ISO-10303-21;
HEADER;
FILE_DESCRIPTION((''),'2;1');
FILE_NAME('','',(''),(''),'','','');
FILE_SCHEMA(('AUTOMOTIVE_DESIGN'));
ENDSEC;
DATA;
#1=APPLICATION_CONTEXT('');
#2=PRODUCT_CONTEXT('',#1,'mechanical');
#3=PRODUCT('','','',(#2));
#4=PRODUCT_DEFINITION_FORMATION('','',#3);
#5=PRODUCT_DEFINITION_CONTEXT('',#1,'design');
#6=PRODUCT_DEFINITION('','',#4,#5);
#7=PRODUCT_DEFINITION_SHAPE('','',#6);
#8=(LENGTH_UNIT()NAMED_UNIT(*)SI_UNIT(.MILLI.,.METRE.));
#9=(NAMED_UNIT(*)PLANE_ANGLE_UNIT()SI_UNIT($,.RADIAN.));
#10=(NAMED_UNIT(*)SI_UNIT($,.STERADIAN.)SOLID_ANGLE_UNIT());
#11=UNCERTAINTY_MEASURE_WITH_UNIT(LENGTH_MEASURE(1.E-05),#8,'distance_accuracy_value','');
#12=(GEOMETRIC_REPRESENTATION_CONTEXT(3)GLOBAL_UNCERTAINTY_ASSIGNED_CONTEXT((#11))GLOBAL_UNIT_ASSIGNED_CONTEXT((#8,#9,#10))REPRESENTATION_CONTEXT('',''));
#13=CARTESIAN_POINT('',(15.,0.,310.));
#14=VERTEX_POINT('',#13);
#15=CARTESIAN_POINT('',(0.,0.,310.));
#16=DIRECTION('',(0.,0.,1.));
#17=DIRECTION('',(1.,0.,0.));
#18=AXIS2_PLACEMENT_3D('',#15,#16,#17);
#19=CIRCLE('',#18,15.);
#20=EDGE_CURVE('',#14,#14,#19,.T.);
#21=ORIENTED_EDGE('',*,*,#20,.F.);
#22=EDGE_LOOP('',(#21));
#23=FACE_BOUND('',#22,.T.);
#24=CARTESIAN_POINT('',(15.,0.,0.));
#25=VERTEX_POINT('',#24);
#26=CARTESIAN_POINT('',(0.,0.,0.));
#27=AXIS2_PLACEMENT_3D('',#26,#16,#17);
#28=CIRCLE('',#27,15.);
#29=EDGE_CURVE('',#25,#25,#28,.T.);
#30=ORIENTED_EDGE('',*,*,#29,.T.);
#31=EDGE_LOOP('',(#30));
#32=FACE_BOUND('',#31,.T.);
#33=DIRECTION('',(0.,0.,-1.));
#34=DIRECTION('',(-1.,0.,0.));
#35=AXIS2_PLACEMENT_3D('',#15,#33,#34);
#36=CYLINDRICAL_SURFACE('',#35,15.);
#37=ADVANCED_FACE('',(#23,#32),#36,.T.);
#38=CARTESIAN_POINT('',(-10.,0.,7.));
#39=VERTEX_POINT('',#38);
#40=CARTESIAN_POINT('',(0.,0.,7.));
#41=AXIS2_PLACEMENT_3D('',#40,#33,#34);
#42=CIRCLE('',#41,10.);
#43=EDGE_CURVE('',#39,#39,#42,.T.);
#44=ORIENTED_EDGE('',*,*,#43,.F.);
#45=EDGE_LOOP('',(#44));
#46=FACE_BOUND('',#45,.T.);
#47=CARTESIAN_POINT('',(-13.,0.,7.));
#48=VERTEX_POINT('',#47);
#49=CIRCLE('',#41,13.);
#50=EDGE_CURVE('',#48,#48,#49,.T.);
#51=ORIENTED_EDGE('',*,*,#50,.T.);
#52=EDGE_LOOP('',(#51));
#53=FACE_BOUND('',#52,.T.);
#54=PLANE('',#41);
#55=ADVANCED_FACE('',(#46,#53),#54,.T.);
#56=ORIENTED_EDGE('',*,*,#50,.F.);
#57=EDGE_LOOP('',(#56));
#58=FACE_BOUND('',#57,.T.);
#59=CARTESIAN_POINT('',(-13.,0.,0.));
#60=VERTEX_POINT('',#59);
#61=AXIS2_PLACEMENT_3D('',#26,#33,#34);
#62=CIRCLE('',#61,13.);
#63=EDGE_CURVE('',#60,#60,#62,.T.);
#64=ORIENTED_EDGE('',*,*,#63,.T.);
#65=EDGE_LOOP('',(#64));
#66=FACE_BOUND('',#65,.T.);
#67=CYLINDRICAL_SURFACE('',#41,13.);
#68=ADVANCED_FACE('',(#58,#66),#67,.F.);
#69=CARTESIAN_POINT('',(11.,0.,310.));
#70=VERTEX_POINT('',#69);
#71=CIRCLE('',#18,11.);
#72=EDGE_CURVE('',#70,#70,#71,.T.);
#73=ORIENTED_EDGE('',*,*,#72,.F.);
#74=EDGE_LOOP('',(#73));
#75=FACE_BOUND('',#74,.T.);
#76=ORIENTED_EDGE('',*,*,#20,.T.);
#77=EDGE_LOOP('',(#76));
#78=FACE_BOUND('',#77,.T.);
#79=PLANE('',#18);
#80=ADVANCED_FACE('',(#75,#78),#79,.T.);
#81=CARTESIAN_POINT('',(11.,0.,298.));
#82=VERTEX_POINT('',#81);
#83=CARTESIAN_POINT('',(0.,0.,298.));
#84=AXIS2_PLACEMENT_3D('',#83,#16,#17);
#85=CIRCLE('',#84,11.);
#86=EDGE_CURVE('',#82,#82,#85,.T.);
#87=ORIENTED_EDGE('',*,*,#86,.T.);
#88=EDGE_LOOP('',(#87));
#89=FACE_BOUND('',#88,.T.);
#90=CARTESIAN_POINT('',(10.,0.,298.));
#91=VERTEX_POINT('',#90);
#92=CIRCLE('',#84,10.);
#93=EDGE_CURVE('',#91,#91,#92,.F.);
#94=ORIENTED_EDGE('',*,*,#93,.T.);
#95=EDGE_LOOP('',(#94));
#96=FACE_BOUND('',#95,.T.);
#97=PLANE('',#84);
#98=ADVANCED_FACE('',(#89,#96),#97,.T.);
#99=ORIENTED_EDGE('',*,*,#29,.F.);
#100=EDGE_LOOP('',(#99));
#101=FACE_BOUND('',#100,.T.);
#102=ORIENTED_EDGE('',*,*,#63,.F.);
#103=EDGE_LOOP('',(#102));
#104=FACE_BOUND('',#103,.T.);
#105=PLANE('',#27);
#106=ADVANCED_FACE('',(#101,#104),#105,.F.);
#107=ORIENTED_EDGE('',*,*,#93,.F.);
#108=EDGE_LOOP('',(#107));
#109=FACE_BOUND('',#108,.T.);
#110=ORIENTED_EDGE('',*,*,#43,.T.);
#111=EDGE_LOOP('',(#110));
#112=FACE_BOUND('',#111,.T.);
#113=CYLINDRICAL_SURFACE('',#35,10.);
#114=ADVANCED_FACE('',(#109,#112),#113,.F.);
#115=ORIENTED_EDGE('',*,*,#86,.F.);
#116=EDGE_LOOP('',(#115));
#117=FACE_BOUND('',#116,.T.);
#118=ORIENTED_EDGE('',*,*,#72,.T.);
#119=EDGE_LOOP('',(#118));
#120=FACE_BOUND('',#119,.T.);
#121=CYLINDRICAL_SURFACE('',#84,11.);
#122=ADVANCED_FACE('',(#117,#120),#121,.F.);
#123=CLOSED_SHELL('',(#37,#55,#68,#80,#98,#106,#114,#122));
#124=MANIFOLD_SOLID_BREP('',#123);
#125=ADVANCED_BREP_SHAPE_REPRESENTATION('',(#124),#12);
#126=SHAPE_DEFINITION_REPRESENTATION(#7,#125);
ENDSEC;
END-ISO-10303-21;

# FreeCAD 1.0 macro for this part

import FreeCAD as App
import Part
import Sketcher

doc = App.newDocument("Part")
params = doc.addObject("Spreadsheet::Sheet", "Params")
for row, (alias, value) in enumerate([
    ("sketch1_diameter", "30 mm"),
    ("sketch1_diameter2", "20 mm"),
    ("pad1_length", "310 mm"),
    ("sketch2_diameter", "26 mm"),
    ("sketch2_diameter2", "20 mm"),
    ("pocket1_length", "7 mm"),
    ("sketch3_diameter", "22 mm"),
    ("sketch3_diameter2", "20 mm"),
    ("pocket2_length", "12 mm"),
], start=1):
    params.set(f"A{row}", alias)
    params.set(f"B{row}", "=" + value)
    params.setAlias(f"B{row}", alias)

body = doc.addObject("PartDesign::Body", "Body")

# Sketch on XY plane
sketch1 = doc.addObject("Sketcher::SketchObject", "Sketch")
body.addObject(sketch1)
sketch1.AttachmentSupport = (doc.XY_Plane, [""])
sketch1.MapMode = "FlatFace"
sketch1.addGeometry([
    Part.Circle(App.Vector(0, 0, 0), App.Vector(0, 0, 1), 15),
    Part.Circle(App.Vector(0, 0, 0), App.Vector(0, 0, 1), 10),
], False)
sketch1.addConstraint([
    Sketcher.Constraint("Coincident", 0, 3, -1, 1),
    Sketcher.Constraint("Coincident", 1, 3, -1, 1),
    Sketcher.Constraint("Diameter", 0, 30.0),
    Sketcher.Constraint("Diameter", 1, 20.0),
])
sketch1.setExpression("Constraints[2]", "Params.sketch1_diameter")
sketch1.setExpression("Constraints[3]", "Params.sketch1_diameter2")
pad1 = doc.addObject("PartDesign::Pad", "Pad")
body.addObject(pad1)
pad1.Profile = sketch1
pad1.setExpression("Length", "Params.pad1_length")

# Sketch on XY plane
sketch2 = doc.addObject("Sketcher::SketchObject", "Sketch001")
body.addObject(sketch2)
sketch2.AttachmentSupport = (doc.XY_Plane, [""])
sketch2.MapMode = "FlatFace"
sketch2.addGeometry([
    Part.Circle(App.Vector(0, 0, 0), App.Vector(0, 0, 1), 13),
    Part.Circle(App.Vector(0, 0, 0), App.Vector(0, 0, 1), 10),
], False)
sketch2.addConstraint([
    Sketcher.Constraint("Coincident", 0, 3, -1, 1),
    Sketcher.Constraint("Coincident", 1, 3, -1, 1),
    Sketcher.Constraint("Diameter", 0, 26.0),
    Sketcher.Constraint("Diameter", 1, 20.0),
])
sketch2.setExpression("Constraints[2]", "Params.sketch2_diameter")
sketch2.setExpression("Constraints[3]", "Params.sketch2_diameter2")
pocket1 = doc.addObject("PartDesign::Pocket", "Pocket")
body.addObject(pocket1)
pocket1.Profile = sketch2
pocket1.setExpression("Length", "Params.pocket1_length")
pocket1.Reversed = True

# Sketch on XY plane
sketch3 = doc.addObject("Sketcher::SketchObject", "Sketch002")
body.addObject(sketch3)
sketch3.AttachmentSupport = (doc.XY_Plane, [""])
sketch3.MapMode = "FlatFace"
sketch3.AttachmentOffset = App.Placement(App.Vector(0, 0, 310), App.Rotation())
sketch3.addGeometry([
    Part.Circle(App.Vector(0, 0, 0), App.Vector(0, 0, 1), 11),
    Part.Circle(App.Vector(0, 0, 0), App.Vector(0, 0, 1), 10),
], False)
sketch3.addConstraint([
    Sketcher.Constraint("Coincident", 0, 3, -1, 1),
    Sketcher.Constraint("Coincident", 1, 3, -1, 1),
    Sketcher.Constraint("Diameter", 0, 22.0),
    Sketcher.Constraint("Diameter", 1, 20.0),
])
sketch3.setExpression("Constraints[2]", "Params.sketch3_diameter")
sketch3.setExpression("Constraints[3]", "Params.sketch3_diameter2")
pocket2 = doc.addObject("PartDesign::Pocket", "Pocket001")
body.addObject(pocket2)
pocket2.Profile = sketch3
pocket2.setExpression("Length", "Params.pocket2_length")

doc.recompute()
